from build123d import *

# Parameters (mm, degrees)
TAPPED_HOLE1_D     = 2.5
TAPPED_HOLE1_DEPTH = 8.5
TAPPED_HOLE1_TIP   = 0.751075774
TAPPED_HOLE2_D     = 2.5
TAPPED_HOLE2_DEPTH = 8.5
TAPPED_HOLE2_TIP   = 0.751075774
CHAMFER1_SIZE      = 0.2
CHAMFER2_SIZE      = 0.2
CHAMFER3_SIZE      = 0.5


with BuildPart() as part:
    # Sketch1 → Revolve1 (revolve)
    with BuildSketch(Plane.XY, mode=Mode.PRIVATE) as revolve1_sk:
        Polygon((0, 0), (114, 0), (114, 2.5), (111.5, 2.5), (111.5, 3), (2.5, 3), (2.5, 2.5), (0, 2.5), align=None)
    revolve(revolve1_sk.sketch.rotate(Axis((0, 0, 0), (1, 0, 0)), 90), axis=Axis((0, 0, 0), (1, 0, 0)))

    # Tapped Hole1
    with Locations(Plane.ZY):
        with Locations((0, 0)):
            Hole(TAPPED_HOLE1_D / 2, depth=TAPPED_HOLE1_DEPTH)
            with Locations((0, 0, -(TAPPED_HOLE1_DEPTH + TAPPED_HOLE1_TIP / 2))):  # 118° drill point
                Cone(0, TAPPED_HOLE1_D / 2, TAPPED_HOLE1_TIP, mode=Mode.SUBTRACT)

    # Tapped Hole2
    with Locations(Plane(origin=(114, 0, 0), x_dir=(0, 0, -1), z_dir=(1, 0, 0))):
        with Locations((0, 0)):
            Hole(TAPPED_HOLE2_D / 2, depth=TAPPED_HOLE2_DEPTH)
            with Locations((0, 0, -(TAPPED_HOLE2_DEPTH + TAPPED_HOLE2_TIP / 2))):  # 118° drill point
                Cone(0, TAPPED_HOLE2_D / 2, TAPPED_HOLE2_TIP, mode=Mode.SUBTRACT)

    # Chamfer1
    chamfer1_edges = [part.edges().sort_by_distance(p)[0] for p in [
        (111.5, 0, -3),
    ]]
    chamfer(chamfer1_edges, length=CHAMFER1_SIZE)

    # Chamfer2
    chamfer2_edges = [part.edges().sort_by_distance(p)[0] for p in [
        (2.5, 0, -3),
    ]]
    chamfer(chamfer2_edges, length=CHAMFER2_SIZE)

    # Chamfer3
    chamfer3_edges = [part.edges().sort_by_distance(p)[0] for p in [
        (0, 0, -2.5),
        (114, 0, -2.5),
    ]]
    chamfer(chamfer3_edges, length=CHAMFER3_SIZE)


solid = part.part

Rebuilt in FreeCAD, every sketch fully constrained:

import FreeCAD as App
import Part
import Sketcher
Q = App.Units.Quantity


def edges_at(feature, points):
    """Names of the edges that pass closest to the given points."""
    edges = feature.Shape.Edges
    near = lambda p: min(range(len(edges)), key=lambda i: edges[i].distToShape(Part.Vertex(*p))[0])
    return sorted({f"Edge{near(p) + 1}" for p in points})


def add_polygon(sketch, points):
    """Adds a closed chain of lines whose ends are joined by coincident constraints."""
    first, n = sketch.GeometryCount, len(points)
    for a, b in zip(points, points[1:] + points[:1]):
        sketch.addGeometry(Part.LineSegment(App.Vector(*a, 0), App.Vector(*b, 0)), False)
    for i in range(n):
        sketch.addConstraint(Sketcher.Constraint("Coincident", first + i, 2, first + (i + 1) % n, 1))

doc = App.newDocument("Part")
params = doc.addObject("Spreadsheet::Sheet", "Params")
for row, (alias, value) in enumerate([
    ("sketch1_width", "114 mm"),
    ("sketch1_width2", "109 mm"),
    ("sketch1_height", "0.5 mm"),
    ("revolution_angle", "360 deg"),
    ("sketch2_diameter", "2.5 mm"),
    ("hole_diameter", "2.5 mm"),
    ("hole_depth", "8.5 mm"),
    ("sketch3_diameter", "2.5 mm"),
    ("hole2_diameter", "2.5 mm"),
    ("hole2_depth", "8.5 mm"),
    ("chamfer_size", "0.2 mm"),
    ("chamfer2_size", "0.2 mm"),
    ("chamfer3_size", "0.5 mm"),
], start=1):
    params.set(f"A{row}", alias)
    params.set(f"B{row}", "=" + value)
    params.setAlias(f"B{row}", alias)

body = doc.addObject("PartDesign::Body", "Body")

# Sketch on XY plane
sketch1 = body.newObject("Sketcher::SketchObject", "Sketch")
sketch1.AttachmentSupport = (doc.getObject("XY_Plane"), [""])
sketch1.MapMode = "FlatFace"
add_polygon(sketch1, [(0, 0), (114, 0), (114, 2.5), (111.5, 2.5), (111.5, 3), (2.5, 3), (2.5, 2.5), (0, 2.5)])  # lines 0-7
sketch1.addConstraint([
    Sketcher.Constraint("Horizontal", 0),
    Sketcher.Constraint("Vertical", 1),
    Sketcher.Constraint("Horizontal", 2),
    Sketcher.Constraint("Vertical", 3),
    Sketcher.Constraint("Horizontal", 4),
    Sketcher.Constraint("Vertical", 5),
    Sketcher.Constraint("Horizontal", 6),
    Sketcher.Constraint("Vertical", 7),
    Sketcher.Constraint("Coincident", 7, 2, -1, 1),
    Sketcher.Constraint("Horizontal", 2, 2, 5, 2),
    Sketcher.Constraint("Equal", 2, 6),
    Sketcher.Constraint("Equal", 6, 1),
    Sketcher.Constraint("DistanceX", 0, 1, 0, 2, Q("114 mm")),
    Sketcher.Constraint("DistanceX", 4, 2, 4, 1, Q("109 mm")),
    Sketcher.Constraint("DistanceY", 3, 1, 3, 2, Q("0.5 mm")),
])
sketch1.setExpression("Constraints[20]", "Params.sketch1_width")
sketch1.setExpression("Constraints[21]", "Params.sketch1_width2")
sketch1.setExpression("Constraints[22]", "Params.sketch1_height")
revolution = body.newObject("PartDesign::Revolution", "Revolution")
revolution.Profile = sketch1
revolution.ReferenceAxis = (sketch1, ["H_Axis"])
revolution.setExpression("Angle", "Params.revolution_angle")

# Sketch on YZ plane
sketch2 = body.newObject("Sketcher::SketchObject", "Sketch001")
sketch2.AttachmentSupport = (doc.getObject("YZ_Plane"), [""])
sketch2.MapMode = "FlatFace"
sketch2.addGeometry(Part.Circle(App.Vector(0, 0, 0), App.Vector(0, 0, 1), 1.25), False)
sketch2.addConstraint([
    Sketcher.Constraint("Coincident", 0, 3, -1, 1),
    Sketcher.Constraint("Diameter", 0, Q("2.5 mm")),
])
sketch2.setExpression("Constraints[1]", "Params.sketch2_diameter")
doc.recompute()
hole = body.newObject("PartDesign::Hole", "Hole")
hole.Profile = sketch2
hole.ThreadType = "None"
hole.setExpression("Diameter", "Params.hole_diameter")
hole.DepthType = "Dimension"
hole.setExpression("Depth", "Params.hole_depth")
hole.DrillPoint = "Angled"
hole.DrillPointAngle = 118
hole.Reversed = True

# Sketch on YZ plane
sketch3 = body.newObject("Sketcher::SketchObject", "Sketch002")
sketch3.AttachmentSupport = (doc.getObject("YZ_Plane"), [""])
sketch3.MapMode = "FlatFace"
sketch3.AttachmentOffset = App.Placement(App.Vector(0, 0, 114), App.Rotation())
sketch3.addGeometry(Part.Circle(App.Vector(0, 0, 0), App.Vector(0, 0, 1), 1.25), False)
sketch3.addConstraint([
    Sketcher.Constraint("Coincident", 0, 3, -1, 1),
    Sketcher.Constraint("Diameter", 0, Q("2.5 mm")),
])
sketch3.setExpression("Constraints[1]", "Params.sketch3_diameter")
doc.recompute()
hole2 = body.newObject("PartDesign::Hole", "Hole001")
hole2.Profile = sketch3
hole2.ThreadType = "None"
hole2.setExpression("Diameter", "Params.hole2_diameter")
hole2.DepthType = "Dimension"
hole2.setExpression("Depth", "Params.hole2_depth")
hole2.DrillPoint = "Angled"
hole2.DrillPointAngle = 118
doc.recompute()

chamfer = body.newObject("PartDesign::Chamfer", "Chamfer")
chamfer.Base = (hole2, edges_at(hole2, [(111.5, 0, -3)]))
chamfer.setExpression("Size", "Params.chamfer_size")
doc.recompute()

chamfer2 = body.newObject("PartDesign::Chamfer", "Chamfer001")
chamfer2.Base = (chamfer, edges_at(chamfer, [(2.5, 0, -3)]))
chamfer2.setExpression("Size", "Params.chamfer2_size")
doc.recompute()

chamfer3 = body.newObject("PartDesign::Chamfer", "Chamfer002")
chamfer3.Base = (chamfer2, edges_at(chamfer2, [(0, 0, -2.5), (114, 0, -2.5)]))
chamfer3.setExpression("Size", "Params.chamfer3_size")

doc.recompute()
